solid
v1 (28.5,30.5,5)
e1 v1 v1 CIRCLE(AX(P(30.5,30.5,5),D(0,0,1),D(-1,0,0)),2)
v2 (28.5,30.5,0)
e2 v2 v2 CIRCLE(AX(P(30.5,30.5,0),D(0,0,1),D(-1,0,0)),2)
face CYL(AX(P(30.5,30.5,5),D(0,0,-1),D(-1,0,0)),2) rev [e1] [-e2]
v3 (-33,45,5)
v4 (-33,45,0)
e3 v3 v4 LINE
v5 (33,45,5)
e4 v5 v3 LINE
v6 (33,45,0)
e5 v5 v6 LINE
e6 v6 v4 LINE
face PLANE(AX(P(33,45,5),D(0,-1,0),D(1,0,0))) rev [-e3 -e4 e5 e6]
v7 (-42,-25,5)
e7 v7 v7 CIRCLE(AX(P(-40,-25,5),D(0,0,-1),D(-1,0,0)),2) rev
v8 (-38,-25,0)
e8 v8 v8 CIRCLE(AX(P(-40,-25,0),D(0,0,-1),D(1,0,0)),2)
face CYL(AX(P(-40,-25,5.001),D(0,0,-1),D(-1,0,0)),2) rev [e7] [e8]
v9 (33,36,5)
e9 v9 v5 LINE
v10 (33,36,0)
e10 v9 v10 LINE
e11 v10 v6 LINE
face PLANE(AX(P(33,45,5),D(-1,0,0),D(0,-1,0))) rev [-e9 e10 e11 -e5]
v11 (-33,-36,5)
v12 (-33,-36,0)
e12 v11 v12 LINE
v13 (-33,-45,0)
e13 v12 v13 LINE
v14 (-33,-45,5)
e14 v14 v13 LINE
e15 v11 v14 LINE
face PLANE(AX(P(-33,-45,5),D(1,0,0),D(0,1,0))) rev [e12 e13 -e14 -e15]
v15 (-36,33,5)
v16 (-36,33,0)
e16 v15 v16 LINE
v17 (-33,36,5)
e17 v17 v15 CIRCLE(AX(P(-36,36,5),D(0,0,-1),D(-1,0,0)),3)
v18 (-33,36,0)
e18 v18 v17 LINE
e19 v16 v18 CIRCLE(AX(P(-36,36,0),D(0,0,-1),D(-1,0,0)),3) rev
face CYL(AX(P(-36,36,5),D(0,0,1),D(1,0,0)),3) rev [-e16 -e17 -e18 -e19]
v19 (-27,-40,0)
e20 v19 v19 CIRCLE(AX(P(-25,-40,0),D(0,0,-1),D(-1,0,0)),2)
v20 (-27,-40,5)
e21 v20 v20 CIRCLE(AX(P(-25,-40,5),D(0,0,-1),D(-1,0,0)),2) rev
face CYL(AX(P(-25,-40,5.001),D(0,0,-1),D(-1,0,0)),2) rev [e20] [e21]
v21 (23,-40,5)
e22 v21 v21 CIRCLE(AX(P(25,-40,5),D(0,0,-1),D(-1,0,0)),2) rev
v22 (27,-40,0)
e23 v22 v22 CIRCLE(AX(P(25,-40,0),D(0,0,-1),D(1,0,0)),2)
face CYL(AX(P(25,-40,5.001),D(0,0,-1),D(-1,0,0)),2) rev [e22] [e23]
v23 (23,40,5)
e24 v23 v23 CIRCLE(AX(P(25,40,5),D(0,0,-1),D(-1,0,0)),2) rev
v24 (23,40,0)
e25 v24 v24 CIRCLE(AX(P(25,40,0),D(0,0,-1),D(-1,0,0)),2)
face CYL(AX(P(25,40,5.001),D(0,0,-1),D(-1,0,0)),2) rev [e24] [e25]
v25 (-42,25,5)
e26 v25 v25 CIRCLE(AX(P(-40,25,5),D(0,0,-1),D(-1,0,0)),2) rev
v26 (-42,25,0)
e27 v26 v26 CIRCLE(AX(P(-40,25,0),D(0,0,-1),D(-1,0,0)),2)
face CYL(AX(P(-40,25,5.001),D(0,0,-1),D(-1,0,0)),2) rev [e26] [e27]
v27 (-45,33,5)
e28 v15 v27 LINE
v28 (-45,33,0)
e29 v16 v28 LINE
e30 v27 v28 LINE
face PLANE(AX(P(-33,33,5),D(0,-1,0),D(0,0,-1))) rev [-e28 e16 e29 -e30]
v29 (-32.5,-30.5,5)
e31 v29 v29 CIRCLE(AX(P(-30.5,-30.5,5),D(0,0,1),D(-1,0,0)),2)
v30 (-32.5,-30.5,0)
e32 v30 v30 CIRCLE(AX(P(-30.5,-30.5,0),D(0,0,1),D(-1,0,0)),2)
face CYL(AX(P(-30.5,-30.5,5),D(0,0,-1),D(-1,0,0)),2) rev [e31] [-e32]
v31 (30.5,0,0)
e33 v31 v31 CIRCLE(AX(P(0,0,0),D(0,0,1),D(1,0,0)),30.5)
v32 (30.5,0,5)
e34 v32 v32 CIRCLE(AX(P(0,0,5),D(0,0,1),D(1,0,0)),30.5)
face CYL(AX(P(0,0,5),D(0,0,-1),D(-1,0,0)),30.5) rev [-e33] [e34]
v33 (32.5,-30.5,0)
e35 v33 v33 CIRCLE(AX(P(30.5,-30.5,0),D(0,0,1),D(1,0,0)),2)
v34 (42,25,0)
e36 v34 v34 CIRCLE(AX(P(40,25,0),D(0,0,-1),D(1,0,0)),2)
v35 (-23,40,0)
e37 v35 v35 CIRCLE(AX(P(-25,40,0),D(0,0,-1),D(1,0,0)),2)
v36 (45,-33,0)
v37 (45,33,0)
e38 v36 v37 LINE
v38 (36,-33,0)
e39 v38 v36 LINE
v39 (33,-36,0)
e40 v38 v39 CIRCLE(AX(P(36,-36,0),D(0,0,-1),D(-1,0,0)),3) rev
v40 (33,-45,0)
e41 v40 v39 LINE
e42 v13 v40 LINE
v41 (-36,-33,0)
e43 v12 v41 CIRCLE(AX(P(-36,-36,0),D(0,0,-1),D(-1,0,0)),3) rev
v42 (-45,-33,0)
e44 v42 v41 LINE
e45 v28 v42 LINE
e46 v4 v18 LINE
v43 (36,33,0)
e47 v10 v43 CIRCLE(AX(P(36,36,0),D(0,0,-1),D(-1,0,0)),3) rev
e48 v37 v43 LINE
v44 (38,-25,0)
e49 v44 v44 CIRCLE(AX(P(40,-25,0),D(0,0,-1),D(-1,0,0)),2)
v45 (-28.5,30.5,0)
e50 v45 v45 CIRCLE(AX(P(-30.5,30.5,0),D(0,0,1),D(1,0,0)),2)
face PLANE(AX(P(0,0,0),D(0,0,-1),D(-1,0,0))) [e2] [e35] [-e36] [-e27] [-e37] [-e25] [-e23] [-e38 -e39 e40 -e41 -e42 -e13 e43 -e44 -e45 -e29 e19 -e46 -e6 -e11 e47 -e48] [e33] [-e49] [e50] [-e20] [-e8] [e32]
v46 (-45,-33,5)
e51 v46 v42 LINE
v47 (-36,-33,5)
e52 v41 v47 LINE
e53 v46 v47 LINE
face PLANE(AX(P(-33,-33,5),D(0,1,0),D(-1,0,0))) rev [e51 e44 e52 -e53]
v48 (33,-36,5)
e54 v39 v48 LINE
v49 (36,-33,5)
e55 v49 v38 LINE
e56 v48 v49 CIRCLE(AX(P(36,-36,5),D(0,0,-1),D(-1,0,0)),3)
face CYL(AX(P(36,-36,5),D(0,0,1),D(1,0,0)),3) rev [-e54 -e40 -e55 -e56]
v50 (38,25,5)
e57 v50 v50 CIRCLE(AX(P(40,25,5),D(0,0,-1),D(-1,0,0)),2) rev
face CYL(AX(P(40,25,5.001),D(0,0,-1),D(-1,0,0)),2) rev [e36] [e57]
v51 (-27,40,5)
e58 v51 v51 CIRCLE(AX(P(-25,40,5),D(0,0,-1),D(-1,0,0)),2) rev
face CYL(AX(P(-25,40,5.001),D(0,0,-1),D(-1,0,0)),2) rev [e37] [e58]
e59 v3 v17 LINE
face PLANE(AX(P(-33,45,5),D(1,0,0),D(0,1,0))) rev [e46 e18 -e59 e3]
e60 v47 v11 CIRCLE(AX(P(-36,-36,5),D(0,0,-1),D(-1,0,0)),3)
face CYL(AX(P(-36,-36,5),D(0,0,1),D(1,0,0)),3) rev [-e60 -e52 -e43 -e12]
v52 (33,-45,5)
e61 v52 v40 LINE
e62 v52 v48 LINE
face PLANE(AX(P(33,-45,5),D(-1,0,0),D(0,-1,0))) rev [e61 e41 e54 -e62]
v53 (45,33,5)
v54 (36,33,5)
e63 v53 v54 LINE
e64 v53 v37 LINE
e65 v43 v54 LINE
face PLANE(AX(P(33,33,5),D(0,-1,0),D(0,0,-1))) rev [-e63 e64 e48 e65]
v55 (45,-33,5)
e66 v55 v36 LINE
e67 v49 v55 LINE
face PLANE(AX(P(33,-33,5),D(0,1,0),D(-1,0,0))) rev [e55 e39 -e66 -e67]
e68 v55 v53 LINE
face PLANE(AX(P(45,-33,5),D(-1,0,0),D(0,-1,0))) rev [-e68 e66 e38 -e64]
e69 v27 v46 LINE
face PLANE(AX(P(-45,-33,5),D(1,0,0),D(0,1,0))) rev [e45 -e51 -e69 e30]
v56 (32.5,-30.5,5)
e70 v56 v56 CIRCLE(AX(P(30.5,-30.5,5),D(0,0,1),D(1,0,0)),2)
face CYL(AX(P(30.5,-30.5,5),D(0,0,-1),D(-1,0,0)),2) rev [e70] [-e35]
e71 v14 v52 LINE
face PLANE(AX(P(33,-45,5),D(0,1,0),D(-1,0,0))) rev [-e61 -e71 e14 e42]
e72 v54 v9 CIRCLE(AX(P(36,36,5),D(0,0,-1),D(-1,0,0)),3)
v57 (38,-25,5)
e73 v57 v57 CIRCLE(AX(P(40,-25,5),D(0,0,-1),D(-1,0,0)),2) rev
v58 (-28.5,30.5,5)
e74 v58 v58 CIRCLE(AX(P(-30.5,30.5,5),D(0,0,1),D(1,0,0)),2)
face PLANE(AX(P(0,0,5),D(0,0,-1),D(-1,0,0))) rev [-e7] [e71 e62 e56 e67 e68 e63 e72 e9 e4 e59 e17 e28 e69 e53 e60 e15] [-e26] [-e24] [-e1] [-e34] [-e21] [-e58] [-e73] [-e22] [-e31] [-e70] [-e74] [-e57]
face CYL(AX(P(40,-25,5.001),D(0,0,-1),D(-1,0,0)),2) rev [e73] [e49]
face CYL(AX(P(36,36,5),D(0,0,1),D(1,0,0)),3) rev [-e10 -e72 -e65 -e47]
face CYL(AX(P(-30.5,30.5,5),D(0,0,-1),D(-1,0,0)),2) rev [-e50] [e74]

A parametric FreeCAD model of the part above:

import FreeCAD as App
import Part
import Sketcher
from FreeCAD import Vector


def edges_at(feature, points):
    """Names of the edges that pass closest to the given points."""
    edges = feature.Shape.Edges
    near = lambda p: min(range(len(edges)), key=lambda i: edges[i].distToShape(Part.Vertex(*p))[0])
    return sorted({f"Edge{near(p) + 1}" for p in points})

doc = App.newDocument("Part")
body = doc.addObject("PartDesign::Body", "Body")

# Sketch on XY plane
sketch1 = body.newObject("Sketcher::SketchObject", "Sketch")
sketch1.AttachmentSupport = (doc.getObject("XY_Plane"), [""])
sketch1.MapMode = "FlatFace"
sketch1.addGeometry(Part.LineSegment(Vector(-33, -45, 0), Vector(33, -45, 0)), False)
sketch1.addGeometry(Part.LineSegment(Vector(33, -45, 0), Vector(33, -33, 0)), False)
sketch1.addGeometry(Part.LineSegment(Vector(33, -33, 0), Vector(45, -33, 0)), False)
sketch1.addGeometry(Part.LineSegment(Vector(45, -33, 0), Vector(45, 33, 0)), False)
sketch1.addGeometry(Part.LineSegment(Vector(45, 33, 0), Vector(33, 33, 0)), False)
sketch1.addGeometry(Part.LineSegment(Vector(33, 33, 0), Vector(33, 45, 0)), False)
sketch1.addGeometry(Part.LineSegment(Vector(33, 45, 0), Vector(-33, 45, 0)), False)
sketch1.addGeometry(Part.LineSegment(Vector(-33, 45, 0), Vector(-33, 33, 0)), False)
sketch1.addGeometry(Part.LineSegment(Vector(-33, 33, 0), Vector(-45, 33, 0)), False)
sketch1.addGeometry(Part.LineSegment(Vector(-45, 33, 0), Vector(-45, -33, 0)), False)
sketch1.addGeometry(Part.LineSegment(Vector(-45, -33, 0), Vector(-33, -33, 0)), False)
sketch1.addGeometry(Part.LineSegment(Vector(-33, -33, 0), Vector(-33, -45, 0)), False)
sketch1.addGeometry(Part.Circle(Vector(30.5, -30.5, 0), Vector(0, 0, 1), 2), False)
sketch1.addGeometry(Part.Circle(Vector(-30.5, -30.5, 0), Vector(0, 0, 1), 2), False)
sketch1.addGeometry(Part.Circle(Vector(30.5, 30.5, 0), Vector(0, 0, 1), 2), False)
sketch1.addGeometry(Part.Circle(Vector(0, 0, 0), Vector(0, 0, 1), 30.5), False)
sketch1.addGeometry(Part.Circle(Vector(-30.5, 30.5, 0), Vector(0, 0, 1), 2), False)
sketch1.addConstraint(Sketcher.Constraint("Coincident", 0, 2, 1, 1))
sketch1.addConstraint(Sketcher.Constraint("Coincident", 1, 2, 2, 1))
sketch1.addConstraint(Sketcher.Constraint("Coincident", 2, 2, 3, 1))
sketch1.addConstraint(Sketcher.Constraint("Coincident", 3, 2, 4, 1))
sketch1.addConstraint(Sketcher.Constraint("Coincident", 4, 2, 5, 1))
sketch1.addConstraint(Sketcher.Constraint("Coincident", 5, 2, 6, 1))
sketch1.addConstraint(Sketcher.Constraint("Coincident", 6, 2, 7, 1))
sketch1.addConstraint(Sketcher.Constraint("Coincident", 7, 2, 8, 1))
sketch1.addConstraint(Sketcher.Constraint("Coincident", 8, 2, 9, 1))
sketch1.addConstraint(Sketcher.Constraint("Coincident", 9, 2, 10, 1))
sketch1.addConstraint(Sketcher.Constraint("Coincident", 10, 2, 11, 1))
sketch1.addConstraint(Sketcher.Constraint("Coincident", 11, 2, 0, 1))
sketch1.addConstraint(Sketcher.Constraint("Horizontal", 0))
sketch1.addConstraint(Sketcher.Constraint("Vertical", 1))
sketch1.addConstraint(Sketcher.Constraint("Horizontal", 2))
sketch1.addConstraint(Sketcher.Constraint("Vertical", 3))
sketch1.addConstraint(Sketcher.Constraint("Horizontal", 4))
sketch1.addConstraint(Sketcher.Constraint("Vertical", 5))
sketch1.addConstraint(Sketcher.Constraint("Horizontal", 6))
sketch1.addConstraint(Sketcher.Constraint("Vertical", 7))
sketch1.addConstraint(Sketcher.Constraint("Horizontal", 8))
sketch1.addConstraint(Sketcher.Constraint("Vertical", 9))
sketch1.addConstraint(Sketcher.Constraint("Horizontal", 10))
sketch1.addConstraint(Sketcher.Constraint("Vertical", 11))
sketch1.addConstraint(Sketcher.Constraint("Coincident", 15, 3, -1, 1))
sketch1.addConstraint(Sketcher.Constraint("Equal", 12, 13))
sketch1.addConstraint(Sketcher.Constraint("Equal", 13, 14))
sketch1.addConstraint(Sketcher.Constraint("Equal", 14, 16))
sketch1.addConstraint(Sketcher.Constraint("Symmetric", 13, 3, 14, 3, -1, 1))
sketch1.addConstraint(Sketcher.Constraint("Symmetric", 12, 3, 16, 3, -1, 1))
sketch1.addConstraint(Sketcher.Constraint("Symmetric", 0, 2, 6, 2, -1, 1))
sketch1.addConstraint(Sketcher.Constraint("Symmetric", 2, 2, 8, 2, -1, 1))
sketch1.addConstraint(Sketcher.Constraint("Symmetric", 4, 2, 10, 2, -1, 1))
sketch1.addConstraint(Sketcher.Constraint("Symmetric", 12, 3, 13, 3, -2))
sketch1.addConstraint(Sketcher.Constraint("Symmetric", 4, 2, 7, 2, -2))
sketch1.addConstraint(Sketcher.Constraint("Equal", 10, 1))
sketch1.addConstraint(Sketcher.Constraint("Equal", 6, 3))
sketch1.addConstraint(Sketcher.Constraint("Diameter", 12, 4.0))
sketch1.addConstraint(Sketcher.Constraint("Diameter", 15, 61.0))
sketch1.addConstraint(Sketcher.Constraint("DistanceX", 0, 1, 0, 2, 66.0))
sketch1.addConstraint(Sketcher.Constraint("DistanceX", 2, 1, 2, 2, 12.0))
sketch1.addConstraint(Sketcher.Constraint("DistanceX", 13, 3, 12, 3, 61.0))
sketch1.addConstraint(Sketcher.Constraint("DistanceY", 12, 3, 14, 3, 61.0))
pad1 = body.newObject("PartDesign::Pad", "Pad")
pad1.Profile = sketch1
pad1.Length = 5
doc.recompute()

fillet = body.newObject("PartDesign::Fillet", "Fillet")
fillet.Base = (pad1, edges_at(pad1, [
    (33, 33, 2.5),
    (33, -33, 2.5),
    (-33, -33, 2.5),
    (-33, 33, 2.5),
]))
fillet.Radius = 3

# Sketch on XY plane
sketch2 = body.newObject("Sketcher::SketchObject", "Sketch001")
sketch2.AttachmentSupport = (doc.getObject("XY_Plane"), [""])
sketch2.MapMode = "FlatFace"
sketch2.addGeometry(Part.Circle(Vector(25, 40, 0), Vector(0, 0, 1), 2), False)
sketch2.addConstraint(Sketcher.Constraint("Diameter", 0, 4.0))
sketch2.addConstraint(Sketcher.Constraint("DistanceX", -1, 1, 0, 3, 25.0))
sketch2.addConstraint(Sketcher.Constraint("DistanceY", -1, 1, 0, 3, 40.0))
pocket1 = body.newObject("PartDesign::Pocket", "Pocket")
pocket1.Profile = sketch2
pocket1.Type = "UpToFirst"
pocket1.Reversed = True

# Sketch on XY plane
sketch3 = body.newObject("Sketcher::SketchObject", "Sketch002")
sketch3.AttachmentSupport = (doc.getObject("XY_Plane"), [""])
sketch3.MapMode = "FlatFace"
sketch3.addGeometry(Part.Circle(Vector(-40, 25, 0), Vector(0, 0, 1), 2), False)
sketch3.addConstraint(Sketcher.Constraint("Diameter", 0, 4.0))
sketch3.addConstraint(Sketcher.Constraint("DistanceX", 0, 3, -1, 1, 40.0))
sketch3.addConstraint(Sketcher.Constraint("DistanceY", -1, 1, 0, 3, 25.0))
pocket2 = body.newObject("PartDesign::Pocket", "Pocket001")
pocket2.Profile = sketch3
pocket2.Type = "UpToFirst"
pocket2.Reversed = True

# Sketch on XY plane
sketch4 = body.newObject("Sketcher::SketchObject", "Sketch003")
sketch4.AttachmentSupport = (doc.getObject("XY_Plane"), [""])
sketch4.MapMode = "FlatFace"
sketch4.addGeometry(Part.Circle(Vector(-25, 40, 0), Vector(0, 0, 1), 2), False)
sketch4.addConstraint(Sketcher.Constraint("Diameter", 0, 4.0))
sketch4.addConstraint(Sketcher.Constraint("DistanceX", 0, 3, -1, 1, 25.0))
sketch4.addConstraint(Sketcher.Constraint("DistanceY", -1, 1, 0, 3, 40.0))
pocket3 = body.newObject("PartDesign::Pocket", "Pocket002")
pocket3.Profile = sketch4
pocket3.Type = "UpToFirst"
pocket3.Reversed = True

# Sketch on XY plane
sketch5 = body.newObject("Sketcher::SketchObject", "Sketch004")
sketch5.AttachmentSupport = (doc.getObject("XY_Plane"), [""])
sketch5.MapMode = "FlatFace"
sketch5.addGeometry(Part.Circle(Vector(-25, -40, 0), Vector(0, 0, 1), 2), False)
sketch5.addConstraint(Sketcher.Constraint("Diameter", 0, 4.0))
sketch5.addConstraint(Sketcher.Constraint("DistanceX", 0, 3, -1, 1, 25.0))
sketch5.addConstraint(Sketcher.Constraint("DistanceY", 0, 3, -1, 1, 40.0))
pocket4 = body.newObject("PartDesign::Pocket", "Pocket003")
pocket4.Profile = sketch5
pocket4.Type = "UpToFirst"
pocket4.Reversed = True

# Sketch on XY plane
sketch6 = body.newObject("Sketcher::SketchObject", "Sketch005")
sketch6.AttachmentSupport = (doc.getObject("XY_Plane"), [""])
sketch6.MapMode = "FlatFace"
sketch6.addGeometry(Part.Circle(Vector(25, -40, 0), Vector(0, 0, 1), 2), False)
sketch6.addConstraint(Sketcher.Constraint("Diameter", 0, 4.0))
sketch6.addConstraint(Sketcher.Constraint("DistanceX", -1, 1, 0, 3, 25.0))
sketch6.addConstraint(Sketcher.Constraint("DistanceY", 0, 3, -1, 1, 40.0))
pocket5 = body.newObject("PartDesign::Pocket", "Pocket004")
pocket5.Profile = sketch6
pocket5.Type = "UpToFirst"
pocket5.Reversed = True

# Sketch on XY plane
sketch7 = body.newObject("Sketcher::SketchObject", "Sketch006")
sketch7.AttachmentSupport = (doc.getObject("XY_Plane"), [""])
sketch7.MapMode = "FlatFace"
sketch7.addGeometry(Part.Circle(Vector(-40, -25, 0), Vector(0, 0, 1), 2), False)
sketch7.addConstraint(Sketcher.Constraint("Diameter", 0, 4.0))
sketch7.addConstraint(Sketcher.Constraint("DistanceX", 0, 3, -1, 1, 40.0))
sketch7.addConstraint(Sketcher.Constraint("DistanceY", 0, 3, -1, 1, 25.0))
pocket6 = body.newObject("PartDesign::Pocket", "Pocket005")
pocket6.Profile = sketch7
pocket6.Type = "UpToFirst"
pocket6.Reversed = True

# Sketch on XY plane
sketch8 = body.newObject("Sketcher::SketchObject", "Sketch007")
sketch8.AttachmentSupport = (doc.getObject("XY_Plane"), [""])
sketch8.MapMode = "FlatFace"
sketch8.addGeometry(Part.Circle(Vector(40, 25, 0), Vector(0, 0, 1), 2), False)
sketch8.addConstraint(Sketcher.Constraint("Diameter", 0, 4.0))
sketch8.addConstraint(Sketcher.Constraint("DistanceX", -1, 1, 0, 3, 40.0))
sketch8.addConstraint(Sketcher.Constraint("DistanceY", -1, 1, 0, 3, 25.0))
pocket7 = body.newObject("PartDesign::Pocket", "Pocket006")
pocket7.Profile = sketch8
pocket7.Type = "UpToFirst"
pocket7.Reversed = True

# Sketch on XY plane
sketch9 = body.newObject("Sketcher::SketchObject", "Sketch008")
sketch9.AttachmentSupport = (doc.getObject("XY_Plane"), [""])
sketch9.MapMode = "FlatFace"
sketch9.addGeometry(Part.Circle(Vector(40, -25, 0), Vector(0, 0, 1), 2), False)
sketch9.addConstraint(Sketcher.Constraint("Diameter", 0, 4.0))
sketch9.addConstraint(Sketcher.Constraint("DistanceX", -1, 1, 0, 3, 40.0))
sketch9.addConstraint(Sketcher.Constraint("DistanceY", 0, 3, -1, 1, 25.0))
pocket8 = body.newObject("PartDesign::Pocket", "Pocket007")
pocket8.Profile = sketch9
pocket8.Type = "UpToFirst"
pocket8.Reversed = True

doc.recompute()
